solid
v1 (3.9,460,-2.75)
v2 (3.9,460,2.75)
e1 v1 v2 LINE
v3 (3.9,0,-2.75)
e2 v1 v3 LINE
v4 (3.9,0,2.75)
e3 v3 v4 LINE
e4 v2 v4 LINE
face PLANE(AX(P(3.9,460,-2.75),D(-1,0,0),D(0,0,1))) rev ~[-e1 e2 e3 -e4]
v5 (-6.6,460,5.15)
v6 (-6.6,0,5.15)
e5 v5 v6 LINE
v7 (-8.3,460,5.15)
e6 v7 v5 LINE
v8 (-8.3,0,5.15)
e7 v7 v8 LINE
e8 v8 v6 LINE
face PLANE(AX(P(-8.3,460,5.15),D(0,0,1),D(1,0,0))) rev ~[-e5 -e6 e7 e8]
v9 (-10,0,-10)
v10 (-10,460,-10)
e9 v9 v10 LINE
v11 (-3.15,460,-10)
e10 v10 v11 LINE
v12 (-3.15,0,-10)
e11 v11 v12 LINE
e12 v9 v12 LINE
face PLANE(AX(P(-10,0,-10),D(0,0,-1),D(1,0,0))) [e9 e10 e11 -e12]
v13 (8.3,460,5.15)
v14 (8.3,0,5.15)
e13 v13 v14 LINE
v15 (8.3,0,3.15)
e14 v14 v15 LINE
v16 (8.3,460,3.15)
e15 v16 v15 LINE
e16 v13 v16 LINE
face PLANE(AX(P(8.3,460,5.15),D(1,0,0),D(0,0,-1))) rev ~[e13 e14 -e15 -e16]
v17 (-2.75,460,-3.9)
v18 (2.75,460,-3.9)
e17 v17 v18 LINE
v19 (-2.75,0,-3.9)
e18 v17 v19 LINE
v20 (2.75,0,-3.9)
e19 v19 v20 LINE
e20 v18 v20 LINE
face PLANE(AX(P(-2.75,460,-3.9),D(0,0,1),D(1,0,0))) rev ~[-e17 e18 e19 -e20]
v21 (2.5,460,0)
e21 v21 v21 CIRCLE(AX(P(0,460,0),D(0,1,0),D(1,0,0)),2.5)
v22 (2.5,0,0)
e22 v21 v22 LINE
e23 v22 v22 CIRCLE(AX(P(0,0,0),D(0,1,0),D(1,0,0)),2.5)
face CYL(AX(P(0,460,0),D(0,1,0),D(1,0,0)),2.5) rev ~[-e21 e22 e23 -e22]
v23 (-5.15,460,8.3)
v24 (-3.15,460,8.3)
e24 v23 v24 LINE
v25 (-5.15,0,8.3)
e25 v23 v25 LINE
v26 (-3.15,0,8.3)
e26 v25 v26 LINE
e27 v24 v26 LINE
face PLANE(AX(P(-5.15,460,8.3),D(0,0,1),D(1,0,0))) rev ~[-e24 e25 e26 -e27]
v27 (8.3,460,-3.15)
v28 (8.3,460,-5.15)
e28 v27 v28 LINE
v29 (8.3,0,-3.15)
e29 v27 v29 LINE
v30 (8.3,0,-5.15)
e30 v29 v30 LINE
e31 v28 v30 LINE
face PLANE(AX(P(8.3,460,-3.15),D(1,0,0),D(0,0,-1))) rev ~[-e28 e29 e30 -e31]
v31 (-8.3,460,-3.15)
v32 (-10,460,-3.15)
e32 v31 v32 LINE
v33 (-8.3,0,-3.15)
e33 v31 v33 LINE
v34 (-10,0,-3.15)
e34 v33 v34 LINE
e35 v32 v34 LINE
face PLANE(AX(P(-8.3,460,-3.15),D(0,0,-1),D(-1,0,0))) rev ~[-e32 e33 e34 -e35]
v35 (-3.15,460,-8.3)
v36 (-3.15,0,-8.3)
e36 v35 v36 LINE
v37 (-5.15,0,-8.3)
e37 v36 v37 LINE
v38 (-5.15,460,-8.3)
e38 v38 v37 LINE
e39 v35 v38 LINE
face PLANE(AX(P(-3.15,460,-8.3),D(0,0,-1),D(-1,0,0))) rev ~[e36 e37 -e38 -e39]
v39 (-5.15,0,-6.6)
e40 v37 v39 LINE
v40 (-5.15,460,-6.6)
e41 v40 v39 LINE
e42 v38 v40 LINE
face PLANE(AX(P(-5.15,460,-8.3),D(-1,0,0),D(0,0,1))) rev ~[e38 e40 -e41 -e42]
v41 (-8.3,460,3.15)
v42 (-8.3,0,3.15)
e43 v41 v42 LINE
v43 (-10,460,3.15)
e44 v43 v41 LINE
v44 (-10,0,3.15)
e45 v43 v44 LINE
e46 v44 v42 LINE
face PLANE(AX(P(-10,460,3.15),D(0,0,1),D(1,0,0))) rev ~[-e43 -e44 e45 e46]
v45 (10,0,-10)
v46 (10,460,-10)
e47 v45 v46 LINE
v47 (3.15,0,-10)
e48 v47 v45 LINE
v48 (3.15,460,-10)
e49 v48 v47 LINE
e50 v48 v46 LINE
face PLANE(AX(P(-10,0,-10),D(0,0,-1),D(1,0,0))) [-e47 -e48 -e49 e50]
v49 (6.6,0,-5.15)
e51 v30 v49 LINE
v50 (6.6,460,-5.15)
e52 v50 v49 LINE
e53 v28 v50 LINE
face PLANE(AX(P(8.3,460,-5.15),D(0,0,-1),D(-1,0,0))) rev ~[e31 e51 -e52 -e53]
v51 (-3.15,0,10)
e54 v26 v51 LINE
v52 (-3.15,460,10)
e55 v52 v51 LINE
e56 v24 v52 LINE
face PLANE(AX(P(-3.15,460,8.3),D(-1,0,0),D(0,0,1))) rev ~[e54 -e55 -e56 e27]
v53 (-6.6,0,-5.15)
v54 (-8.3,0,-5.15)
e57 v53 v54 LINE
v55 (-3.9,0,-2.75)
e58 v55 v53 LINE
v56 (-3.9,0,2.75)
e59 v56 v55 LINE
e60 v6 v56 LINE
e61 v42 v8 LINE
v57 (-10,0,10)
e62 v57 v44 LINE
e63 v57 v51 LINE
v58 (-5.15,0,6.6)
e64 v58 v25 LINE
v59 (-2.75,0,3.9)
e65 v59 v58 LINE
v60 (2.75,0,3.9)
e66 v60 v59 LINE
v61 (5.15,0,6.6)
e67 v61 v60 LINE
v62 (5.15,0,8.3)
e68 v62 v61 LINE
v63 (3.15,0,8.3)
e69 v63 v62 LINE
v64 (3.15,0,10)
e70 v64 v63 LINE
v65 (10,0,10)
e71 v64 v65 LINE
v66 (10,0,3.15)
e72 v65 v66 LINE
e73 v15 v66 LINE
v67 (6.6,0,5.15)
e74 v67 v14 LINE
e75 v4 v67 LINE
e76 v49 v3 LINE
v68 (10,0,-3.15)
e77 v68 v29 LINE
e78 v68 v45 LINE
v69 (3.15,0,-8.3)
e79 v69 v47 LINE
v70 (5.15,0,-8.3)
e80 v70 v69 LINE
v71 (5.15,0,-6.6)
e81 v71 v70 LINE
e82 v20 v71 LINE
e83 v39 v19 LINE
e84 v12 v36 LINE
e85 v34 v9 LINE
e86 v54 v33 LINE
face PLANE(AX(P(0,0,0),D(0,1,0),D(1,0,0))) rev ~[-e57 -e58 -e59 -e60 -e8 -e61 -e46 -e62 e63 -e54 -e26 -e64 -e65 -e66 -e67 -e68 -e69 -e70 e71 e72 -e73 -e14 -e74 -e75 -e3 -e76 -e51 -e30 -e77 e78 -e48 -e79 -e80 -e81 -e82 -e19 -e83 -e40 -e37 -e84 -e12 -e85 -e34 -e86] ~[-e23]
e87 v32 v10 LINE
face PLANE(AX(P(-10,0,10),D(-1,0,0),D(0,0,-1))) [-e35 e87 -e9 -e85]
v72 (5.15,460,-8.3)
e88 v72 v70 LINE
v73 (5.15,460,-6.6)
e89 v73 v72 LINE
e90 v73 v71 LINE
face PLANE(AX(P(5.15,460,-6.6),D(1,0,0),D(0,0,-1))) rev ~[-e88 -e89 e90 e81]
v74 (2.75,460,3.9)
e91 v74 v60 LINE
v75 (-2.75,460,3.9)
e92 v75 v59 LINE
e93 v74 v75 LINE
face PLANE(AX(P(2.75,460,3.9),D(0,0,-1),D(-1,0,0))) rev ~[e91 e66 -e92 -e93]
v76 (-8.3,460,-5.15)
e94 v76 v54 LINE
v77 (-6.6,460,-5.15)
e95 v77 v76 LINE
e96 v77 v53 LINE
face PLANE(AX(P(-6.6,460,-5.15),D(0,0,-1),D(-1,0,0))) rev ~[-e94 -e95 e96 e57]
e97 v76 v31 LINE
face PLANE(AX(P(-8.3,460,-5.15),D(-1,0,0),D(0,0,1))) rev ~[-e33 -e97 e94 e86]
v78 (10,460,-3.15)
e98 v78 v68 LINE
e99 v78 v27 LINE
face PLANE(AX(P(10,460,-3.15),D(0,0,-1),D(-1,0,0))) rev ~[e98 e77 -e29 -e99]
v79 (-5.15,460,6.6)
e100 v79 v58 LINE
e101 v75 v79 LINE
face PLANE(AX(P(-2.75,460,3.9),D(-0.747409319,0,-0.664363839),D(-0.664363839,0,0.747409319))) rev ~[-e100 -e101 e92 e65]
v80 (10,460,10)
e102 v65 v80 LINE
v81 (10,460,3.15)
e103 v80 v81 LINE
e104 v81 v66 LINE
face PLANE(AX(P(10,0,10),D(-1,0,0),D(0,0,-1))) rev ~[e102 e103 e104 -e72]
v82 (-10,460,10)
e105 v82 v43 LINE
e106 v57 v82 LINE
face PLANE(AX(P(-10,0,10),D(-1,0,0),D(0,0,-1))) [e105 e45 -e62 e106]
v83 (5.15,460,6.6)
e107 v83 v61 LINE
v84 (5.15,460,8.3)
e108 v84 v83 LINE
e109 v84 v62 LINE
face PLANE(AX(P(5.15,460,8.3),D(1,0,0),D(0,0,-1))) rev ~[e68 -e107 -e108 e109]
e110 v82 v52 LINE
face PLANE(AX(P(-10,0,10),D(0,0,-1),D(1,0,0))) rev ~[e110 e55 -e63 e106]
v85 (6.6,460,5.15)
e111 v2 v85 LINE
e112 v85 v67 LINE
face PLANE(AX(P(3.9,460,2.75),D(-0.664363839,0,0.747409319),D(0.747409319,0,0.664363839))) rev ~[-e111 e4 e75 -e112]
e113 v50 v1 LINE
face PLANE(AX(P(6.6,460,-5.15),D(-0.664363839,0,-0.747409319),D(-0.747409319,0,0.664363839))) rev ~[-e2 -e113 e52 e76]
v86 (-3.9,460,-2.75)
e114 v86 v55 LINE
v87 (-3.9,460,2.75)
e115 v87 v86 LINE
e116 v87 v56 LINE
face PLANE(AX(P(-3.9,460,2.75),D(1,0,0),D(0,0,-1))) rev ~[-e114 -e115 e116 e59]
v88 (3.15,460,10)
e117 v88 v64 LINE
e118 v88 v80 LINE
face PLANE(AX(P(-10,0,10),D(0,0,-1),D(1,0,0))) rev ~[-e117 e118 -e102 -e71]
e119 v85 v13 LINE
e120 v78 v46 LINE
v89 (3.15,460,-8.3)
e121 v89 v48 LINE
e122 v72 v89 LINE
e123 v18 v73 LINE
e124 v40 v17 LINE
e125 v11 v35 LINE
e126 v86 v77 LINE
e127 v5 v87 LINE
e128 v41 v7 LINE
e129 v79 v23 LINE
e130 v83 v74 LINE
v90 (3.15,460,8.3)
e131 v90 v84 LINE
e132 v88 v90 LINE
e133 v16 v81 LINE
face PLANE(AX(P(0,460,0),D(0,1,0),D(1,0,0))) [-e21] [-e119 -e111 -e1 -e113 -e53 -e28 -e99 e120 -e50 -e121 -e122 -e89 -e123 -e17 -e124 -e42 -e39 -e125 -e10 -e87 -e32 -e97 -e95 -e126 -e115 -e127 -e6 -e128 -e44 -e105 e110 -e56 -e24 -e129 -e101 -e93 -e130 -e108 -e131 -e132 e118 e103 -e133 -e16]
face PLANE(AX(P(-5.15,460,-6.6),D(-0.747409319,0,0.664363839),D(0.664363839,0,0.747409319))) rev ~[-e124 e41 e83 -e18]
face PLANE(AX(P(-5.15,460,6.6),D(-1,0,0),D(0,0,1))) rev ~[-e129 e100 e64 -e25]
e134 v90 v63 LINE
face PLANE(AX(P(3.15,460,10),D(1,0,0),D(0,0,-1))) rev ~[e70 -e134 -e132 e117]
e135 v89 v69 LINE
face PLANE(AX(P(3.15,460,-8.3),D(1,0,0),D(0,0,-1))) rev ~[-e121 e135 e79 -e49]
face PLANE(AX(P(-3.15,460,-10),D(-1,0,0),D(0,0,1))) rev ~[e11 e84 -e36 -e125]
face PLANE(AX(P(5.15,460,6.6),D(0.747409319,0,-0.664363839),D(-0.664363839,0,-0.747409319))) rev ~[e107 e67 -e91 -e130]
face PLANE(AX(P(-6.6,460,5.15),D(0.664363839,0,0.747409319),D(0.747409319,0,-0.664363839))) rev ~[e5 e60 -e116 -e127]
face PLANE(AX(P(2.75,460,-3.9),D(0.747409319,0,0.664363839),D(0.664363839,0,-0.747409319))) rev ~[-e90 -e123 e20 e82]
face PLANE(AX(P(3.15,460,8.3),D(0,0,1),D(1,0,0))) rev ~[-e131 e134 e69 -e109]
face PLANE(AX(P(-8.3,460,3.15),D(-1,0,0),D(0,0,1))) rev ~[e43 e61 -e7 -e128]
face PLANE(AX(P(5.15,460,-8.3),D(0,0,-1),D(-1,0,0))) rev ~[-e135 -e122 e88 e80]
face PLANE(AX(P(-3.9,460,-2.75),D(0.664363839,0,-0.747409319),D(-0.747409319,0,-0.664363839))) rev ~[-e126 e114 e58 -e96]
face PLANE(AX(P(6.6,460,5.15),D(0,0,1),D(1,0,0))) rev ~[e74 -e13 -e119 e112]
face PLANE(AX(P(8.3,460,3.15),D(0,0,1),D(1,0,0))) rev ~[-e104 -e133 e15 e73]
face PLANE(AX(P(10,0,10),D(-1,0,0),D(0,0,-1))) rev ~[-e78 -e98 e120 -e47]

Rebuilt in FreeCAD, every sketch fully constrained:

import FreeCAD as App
import Part
import Sketcher

V = App.Vector
Q = App.Units.Quantity


def add_polygon(sketch, points):
    """Adds a closed chain of lines whose ends are joined by coincident constraints."""
    first, n = sketch.GeometryCount, len(points)
    for a, b in zip(points, points[1:] + points[:1]):
        sketch.addGeometry(Part.LineSegment(App.Vector(*a, 0), App.Vector(*b, 0)), False)
    for i in range(n):
        sketch.addConstraint(Sketcher.Constraint("Coincident", first + i, 2, first + (i + 1) % n, 1))

doc = App.newDocument("Part")
params = doc.addObject("Spreadsheet::Sheet", "Params")
for row, (alias, value) in enumerate([
    ("sketch1_width", "20 mm"),
    ("pad1_length", "460 mm"),
    ("sketch2_diameter", "5 mm"),
    ("sketch2_width", "2 mm"),
    ("sketch2_width2", "5.5 mm"),
    ("sketch2_width3", "6.3 mm"),
    ("sketch2_width4", "1.7 mm"),
], start=1):
    params.set(f"A{row}", alias)
    params.set(f"B{row}", "=" + value)
    params.setAlias(f"B{row}", alias)

body = doc.addObject("PartDesign::Body", "Body")

sketch1 = body.newObject("Sketcher::SketchObject", "Sketch")
sketch1.AttachmentSupport = (doc.getObject("XZ_Plane"), [""])
sketch1.MapMode = "FlatFace"
add_polygon(sketch1, [(-10, -10), (-10, 10), (10, 10), (10, -10)])
sketch1.addConstraint([
    Sketcher.Constraint("Vertical", 0),
    Sketcher.Constraint("Horizontal", 1),
    Sketcher.Constraint("Vertical", 2),
    Sketcher.Constraint("Horizontal", 3),
    Sketcher.Constraint("Symmetric", 0, 2, 2, 2, -1, 1),
    Sketcher.Constraint("Equal", 3, 0),
    Sketcher.Constraint("DistanceX", 1, 1, 1, 2, Q("20 mm")),
])
sketch1.setExpression("Constraints[10]", "Params.sketch1_width")
pad1 = body.newObject("PartDesign::Pad", "Pad")
pad1.Profile = sketch1
pad1.setExpression("Length", "Params.pad1_length")
pad1.Reversed = True

sketch2 = body.newObject("Sketcher::SketchObject", "Sketch001")
sketch2.AttachmentSupport = (doc.getObject("XZ_Plane"), [""])
sketch2.MapMode = "FlatFace"
sketch2.AttachmentOffset = App.Placement(V(0, 0, -460), App.Rotation())
sketch2.addGeometry(Part.Circle(V(0, 0, 0), V(0, 0, 1), 2.5), False)
add_polygon(sketch2, [(-3.1, -10), (-3.1, -8.3), (-5.2, -8.3), (-5.2, -6.6), (-2.8, -3.9), (2.8, -3.9), (5.2, -6.6), (5.2, -8.3), (3.1, -8.3), (3.1, -10)])
add_polygon(sketch2, [(3.9, -2.8), (3.9, 2.8), (6.6, 5.2), (8.3, 5.2), (8.3, 3.1), (10, 3.1), (10, -3.1), (8.3, -3.1), (8.3, -5.2), (6.6, -5.2)])
add_polygon(sketch2, [(2.8, 3.9), (-2.8, 3.9), (-5.2, 6.6), (-5.2, 8.3), (-3.1, 8.3), (-3.1, 10), (3.1, 10), (3.1, 8.3), (5.2, 8.3), (5.2, 6.6)])
add_polygon(sketch2, [(-3.9, 2.8), (-3.9, -2.8), (-6.6, -5.2), (-8.3, -5.2), (-8.3, -3.1), (-10, -3.1), (-10, 3.1), (-8.3, 3.1), (-8.3, 5.2), (-6.6, 5.2)])
sketch2.addConstraint([
    Sketcher.Constraint("Vertical", 1),
    Sketcher.Constraint("Horizontal", 2),
    Sketcher.Constraint("Vertical", 3),
    Sketcher.Constraint("Horizontal", 5),
    Sketcher.Constraint("Vertical", 7),
    Sketcher.Constraint("Horizontal", 8),
    Sketcher.Constraint("Vertical", 9),
    Sketcher.Constraint("Horizontal", 10),
    Sketcher.Constraint("Vertical", 11),
    Sketcher.Constraint("Horizontal", 13),
    Sketcher.Constraint("Vertical", 14),
    Sketcher.Constraint("Horizontal", 15),
    Sketcher.Constraint("Vertical", 16),
    Sketcher.Constraint("Horizontal", 17),
    Sketcher.Constraint("Vertical", 18),
    Sketcher.Constraint("Horizontal", 19),
    Sketcher.Constraint("Horizontal", 21),
    Sketcher.Constraint("Vertical", 23),
    Sketcher.Constraint("Horizontal", 24),
    Sketcher.Constraint("Vertical", 25),
    Sketcher.Constraint("Horizontal", 26),
    Sketcher.Constraint("Vertical", 27),
    Sketcher.Constraint("Horizontal", 28),
    Sketcher.Constraint("Vertical", 29),
    Sketcher.Constraint("Vertical", 31),
    Sketcher.Constraint("Horizontal", 33),
    Sketcher.Constraint("Vertical", 34),
    Sketcher.Constraint("Horizontal", 35),
    Sketcher.Constraint("Vertical", 36),
    Sketcher.Constraint("Horizontal", 37),
    Sketcher.Constraint("Vertical", 38),
    Sketcher.Constraint("Horizontal", 39),
    Sketcher.Constraint("Coincident", 0, 3, -1, 1),
    Sketcher.Constraint("Symmetric", 5, 2, 21, 2, -1, 1),
    Sketcher.Constraint("Symmetric", 6, 2, 22, 2, -1, 1),
    Sketcher.Constraint("Symmetric", 8, 2, 24, 2, -1, 1),
    Sketcher.Constraint("Symmetric", 10, 2, 26, 2, -1, 1),
    Sketcher.Constraint("Symmetric", 2, 2, 28, 2, -1, 1),
    Sketcher.Constraint("Symmetric", 11, 2, 31, 2, -1, 1),
    Sketcher.Constraint("Symmetric", 12, 2, 32, 2, -1, 1),
    Sketcher.Constraint("Symmetric", 14, 2, 34, 2, -1, 1),
    Sketcher.Constraint("Symmetric", 16, 2, 36, 2, -1, 1),
    Sketcher.Constraint("Symmetric", 18, 2, 38, 2, -1, 1),
    Sketcher.Constraint("Symmetric", 3, 2, 6, 2, -2),
    Sketcher.Constraint("Symmetric", 1, 2, 8, 2, -2),
    Sketcher.Constraint("Symmetric", 19, 2, 32, 2, -2),
    Sketcher.Constraint("Symmetric", 17, 2, 34, 2, -2),
    Sketcher.Constraint("Perpendicular", 6, 12),
    Sketcher.Constraint("Perpendicular", 4, 20),
    Sketcher.Constraint("Perpendicular", 20, 30),
    Sketcher.Constraint("Perpendicular", 30, 40),
    Sketcher.Constraint("Horizontal", 22, 2, 29, 2),
    Sketcher.Constraint("Horizontal", 20, 2, 31, 2),
    Sketcher.Constraint("Horizontal", 11, 2, 40, 2),
    Sketcher.Constraint("Equal", 13, 15),
    Sketcher.Constraint("Equal", 39, 1),
    Sketcher.Constraint("Equal", 1, 3),
    Sketcher.Constraint("Equal", 21, 11),
    Sketcher.Constraint("Equal", 28, 14),
    Sketcher.Constraint("Equal", 26, 16),
    Sketcher.Constraint("Diameter", 0, Q("5 mm")),
    Sketcher.Constraint("DistanceX", 2, 2, 2, 1, Q("2 mm")),
    Sketcher.Constraint("DistanceX", 5, 1, 5, 2, Q("5.5 mm")),
    Sketcher.Constraint("DistanceX", 10, 2, 10, 1, Q("6.3 mm")),
    Sketcher.Constraint("DistanceX", 13, 1, 13, 2, Q("1.7 mm")),
    Sketcher.Constraint("DistanceY", 9, 2, -1, 1, Q("10 mm")),
    Sketcher.Constraint("DistanceX", -1, 1, 15, 2, Q("10 mm")),
    Sketcher.Constraint("DistanceY", 4, 2, -1, 1, Q("3.9 mm")),
])
sketch2.setExpression("Constraints[100]", "Params.sketch2_diameter")
sketch2.setExpression("Constraints[101]", "Params.sketch2_width")
sketch2.setExpression("Constraints[102]", "Params.sketch2_width2")
sketch2.setExpression("Constraints[103]", "Params.sketch2_width3")
sketch2.setExpression("Constraints[104]", "Params.sketch2_width4")
pocket1 = body.newObject("PartDesign::Pocket", "Pocket")
pocket1.Profile = sketch2
pocket1.Type = "ThroughAll"
pocket1.Reversed = True

doc.recompute()
